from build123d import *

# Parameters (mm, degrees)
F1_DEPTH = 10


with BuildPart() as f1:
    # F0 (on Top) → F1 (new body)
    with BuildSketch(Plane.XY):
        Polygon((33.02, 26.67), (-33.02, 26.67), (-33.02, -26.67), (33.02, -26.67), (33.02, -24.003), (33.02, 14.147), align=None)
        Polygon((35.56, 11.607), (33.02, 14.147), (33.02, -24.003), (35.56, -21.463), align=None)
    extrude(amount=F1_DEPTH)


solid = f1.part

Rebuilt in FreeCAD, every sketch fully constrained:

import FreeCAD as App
import Part
import Sketcher
from FreeCAD import Vector
Q = App.Units.Quantity


def add_polygon(sketch, points):
    """Adds a closed chain of lines whose ends are joined by coincident constraints."""
    first, n = sketch.GeometryCount, len(points)
    for a, b in zip(points, points[1:] + points[:1]):
        sketch.addGeometry(Part.LineSegment(App.Vector(*a, 0), App.Vector(*b, 0)), False)
    for i in range(n):
        sketch.addConstraint(Sketcher.Constraint("Coincident", first + i, 2, first + (i + 1) % n, 1))

doc = App.newDocument("Part")
body = doc.addObject("PartDesign::Body", "Body")

sketch1 = doc.addObject("Sketcher::SketchObject", "Sketch")
body.addObject(sketch1)
sketch1.AttachmentSupport = (doc.XY_Plane, [""])
sketch1.MapMode = "FlatFace"
add_polygon(sketch1, [(33, 26.7), (-33, 26.7), (-33, -26.7), (33, -26.7), (33, -24), (35.6, -21.5), (35.6, 11.6), (33, 14.1)])
sketch1.addConstraint(Sketcher.Constraint("Horizontal", 0))
sketch1.addConstraint(Sketcher.Constraint("Vertical", 1))
sketch1.addConstraint(Sketcher.Constraint("Horizontal", 2))
sketch1.addConstraint(Sketcher.Constraint("Vertical", 3))
sketch1.addConstraint(Sketcher.Constraint("Vertical", 5))
sketch1.addConstraint(Sketcher.Constraint("Vertical", 7))
sketch1.addConstraint(Sketcher.Constraint("Symmetric", 0, 2, 2, 2, -1, 1))
sketch1.addConstraint(Sketcher.Constraint("Perpendicular", 4, 6))
sketch1.addConstraint(Sketcher.Constraint("Vertical", 3, 2, 6, 2))
sketch1.addConstraint(Sketcher.Constraint("Equal", 4, 6))
sketch1.addConstraint(Sketcher.Constraint("DistanceX", 0, 2, 0, 1, Q("2.6 in")))
sketch1.addConstraint(Sketcher.Constraint("DistanceY", 1, 2, 1, 1, Q("2.1 in")))
sketch1.addConstraint(Sketcher.Constraint("DistanceX", -1, 1, 4, 2, Q("1.4 in")))
sketch1.addConstraint(Sketcher.Constraint("DistanceY", 3, 1, 3, 2, Q("0.105 in")))
sketch1.addConstraint(Sketcher.Constraint("DistanceY", 5, 1, 5, 2, Q("33.07 mm")))
pad1 = doc.addObject("PartDesign::Pad", "Pad")
body.addObject(pad1)
pad1.Profile = sketch1
pad1.Length = 10

doc.recompute()
